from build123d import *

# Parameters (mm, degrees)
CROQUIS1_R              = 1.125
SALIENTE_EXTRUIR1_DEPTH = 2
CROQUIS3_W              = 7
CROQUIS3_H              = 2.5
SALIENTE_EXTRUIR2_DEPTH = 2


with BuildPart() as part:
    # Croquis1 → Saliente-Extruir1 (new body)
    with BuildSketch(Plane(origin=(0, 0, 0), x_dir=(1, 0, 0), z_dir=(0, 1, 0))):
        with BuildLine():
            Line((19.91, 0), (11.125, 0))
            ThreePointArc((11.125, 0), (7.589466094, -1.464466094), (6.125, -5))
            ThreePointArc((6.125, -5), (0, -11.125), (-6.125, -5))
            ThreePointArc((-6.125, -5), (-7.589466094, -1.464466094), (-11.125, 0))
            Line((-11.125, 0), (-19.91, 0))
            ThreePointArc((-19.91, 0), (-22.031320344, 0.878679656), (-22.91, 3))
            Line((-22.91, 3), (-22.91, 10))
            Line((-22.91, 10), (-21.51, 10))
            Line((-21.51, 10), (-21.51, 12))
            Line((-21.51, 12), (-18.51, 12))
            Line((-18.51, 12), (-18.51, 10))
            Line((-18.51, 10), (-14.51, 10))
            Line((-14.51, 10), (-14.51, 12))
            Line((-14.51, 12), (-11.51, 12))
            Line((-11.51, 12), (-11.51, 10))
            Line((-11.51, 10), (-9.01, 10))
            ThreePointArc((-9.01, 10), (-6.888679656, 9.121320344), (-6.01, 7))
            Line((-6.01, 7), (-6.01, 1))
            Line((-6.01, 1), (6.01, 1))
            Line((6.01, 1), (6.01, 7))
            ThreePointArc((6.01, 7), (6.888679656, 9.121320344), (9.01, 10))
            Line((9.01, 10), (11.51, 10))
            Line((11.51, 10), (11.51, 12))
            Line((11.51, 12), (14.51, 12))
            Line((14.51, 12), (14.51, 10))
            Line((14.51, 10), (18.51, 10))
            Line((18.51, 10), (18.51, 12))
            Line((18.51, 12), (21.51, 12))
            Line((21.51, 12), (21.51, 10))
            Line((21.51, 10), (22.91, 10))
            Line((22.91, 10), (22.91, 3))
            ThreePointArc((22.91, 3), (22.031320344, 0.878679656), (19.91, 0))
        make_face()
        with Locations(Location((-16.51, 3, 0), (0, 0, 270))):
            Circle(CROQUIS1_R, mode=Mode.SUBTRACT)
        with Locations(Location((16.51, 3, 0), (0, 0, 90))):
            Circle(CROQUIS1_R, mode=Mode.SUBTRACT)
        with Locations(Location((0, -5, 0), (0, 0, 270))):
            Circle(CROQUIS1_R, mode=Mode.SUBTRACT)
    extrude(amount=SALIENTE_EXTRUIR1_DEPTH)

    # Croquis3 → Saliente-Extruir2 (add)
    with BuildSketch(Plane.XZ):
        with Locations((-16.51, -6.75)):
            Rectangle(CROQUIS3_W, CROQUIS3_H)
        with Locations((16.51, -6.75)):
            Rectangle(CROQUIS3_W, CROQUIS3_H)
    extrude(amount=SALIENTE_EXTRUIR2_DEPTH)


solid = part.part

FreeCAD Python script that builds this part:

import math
import FreeCAD as App
import Part
import Sketcher

V = App.Vector

doc = App.newDocument("Part")
body = doc.addObject("PartDesign::Body", "Body")

# Sketch on XZ plane
sketch1 = body.newObject("Sketcher::SketchObject", "Sketch")
sketch1.AttachmentSupport = (doc.getObject("XZ_Plane"), [""])
sketch1.MapMode = "FlatFace"
sketch1.addGeometry(Part.LineSegment(V(11.1, 0, 0), V(19.9, 0, 0)), False)
sketch1.addGeometry(Part.ArcOfCircle(Part.Circle(V(19.9, -3, 0), V(0, 0, 1), 3), math.radians(0), math.radians(90)), False)
sketch1.addGeometry(Part.LineSegment(V(22.9, -3, 0), V(22.9, -10, 0)), False)
sketch1.addGeometry(Part.LineSegment(V(22.9, -10, 0), V(21.5, -10, 0)), False)
sketch1.addGeometry(Part.LineSegment(V(21.5, -10, 0), V(21.5, -12, 0)), False)
sketch1.addGeometry(Part.LineSegment(V(21.5, -12, 0), V(18.5, -12, 0)), False)
sketch1.addGeometry(Part.LineSegment(V(18.5, -12, 0), V(18.5, -10, 0)), False)
sketch1.addGeometry(Part.LineSegment(V(18.5, -10, 0), V(14.5, -10, 0)), False)
sketch1.addGeometry(Part.LineSegment(V(14.5, -10, 0), V(14.5, -12, 0)), False)
sketch1.addGeometry(Part.LineSegment(V(14.5, -12, 0), V(11.5, -12, 0)), False)
sketch1.addGeometry(Part.LineSegment(V(11.5, -12, 0), V(11.5, -10, 0)), False)
sketch1.addGeometry(Part.LineSegment(V(11.5, -10, 0), V(9, -10, 0)), False)
sketch1.addGeometry(Part.ArcOfCircle(Part.Circle(V(9, -7, 0), V(0, 0, 1), 3), math.radians(180), math.radians(270)), False)
sketch1.addGeometry(Part.LineSegment(V(6, -7, 0), V(6, -1, 0)), False)
sketch1.addGeometry(Part.LineSegment(V(6, -1, 0), V(-6, -1, 0)), False)
sketch1.addGeometry(Part.LineSegment(V(-6, -1, 0), V(-6, -7, 0)), False)
sketch1.addGeometry(Part.ArcOfCircle(Part.Circle(V(-9, -7, 0), V(0, 0, 1), 3), math.radians(-90), math.radians(0)), False)
sketch1.addGeometry(Part.LineSegment(V(-9, -10, 0), V(-11.5, -10, 0)), False)
sketch1.addGeometry(Part.LineSegment(V(-11.5, -10, 0), V(-11.5, -12, 0)), False)
sketch1.addGeometry(Part.LineSegment(V(-11.5, -12, 0), V(-14.5, -12, 0)), False)
sketch1.addGeometry(Part.LineSegment(V(-14.5, -12, 0), V(-14.5, -10, 0)), False)
sketch1.addGeometry(Part.LineSegment(V(-14.5, -10, 0), V(-18.5, -10, 0)), False)
sketch1.addGeometry(Part.LineSegment(V(-18.5, -10, 0), V(-18.5, -12, 0)), False)
sketch1.addGeometry(Part.LineSegment(V(-18.5, -12, 0), V(-21.5, -12, 0)), False)
sketch1.addGeometry(Part.LineSegment(V(-21.5, -12, 0), V(-21.5, -10, 0)), False)
sketch1.addGeometry(Part.LineSegment(V(-21.5, -10, 0), V(-22.9, -10, 0)), False)
sketch1.addGeometry(Part.LineSegment(V(-22.9, -10, 0), V(-22.9, -3, 0)), False)
sketch1.addGeometry(Part.ArcOfCircle(Part.Circle(V(-19.9, -3, 0), V(0, 0, 1), 3), math.radians(90), math.radians(180)), False)
sketch1.addGeometry(Part.LineSegment(V(-19.9, 0, 0), V(-11.1, 0, 0)), False)
sketch1.addGeometry(Part.ArcOfCircle(Part.Circle(V(-11.1, 5, 0), V(0, 0, 1), 5), math.radians(-90), math.radians(0)), False)
sketch1.addGeometry(Part.ArcOfCircle(Part.Circle(V(0, 5, 0), V(0, 0, 1), 6.1), math.radians(0), math.radians(180)), False)
sketch1.addGeometry(Part.ArcOfCircle(Part.Circle(V(11.1, 5, 0), V(0, 0, 1), 5), math.radians(180), math.radians(270)), False)
sketch1.addGeometry(Part.Circle(V(0, 5, 0), V(0, 0, 1), 1.1), False)
sketch1.addGeometry(Part.Circle(V(16.5, -3, 0), V(0, 0, 1), 1.1), False)
sketch1.addGeometry(Part.Circle(V(-16.5, -3, 0), V(0, 0, 1), 1.1), False)
sketch1.addConstraint(Sketcher.Constraint("Tangent", 0, 2, 1, 2))
sketch1.addConstraint(Sketcher.Constraint("Tangent", 1, 1, 2, 1))
sketch1.addConstraint(Sketcher.Constraint("Coincident", 2, 2, 3, 1))
sketch1.addConstraint(Sketcher.Constraint("Coincident", 3, 2, 4, 1))
sketch1.addConstraint(Sketcher.Constraint("Coincident", 4, 2, 5, 1))
sketch1.addConstraint(Sketcher.Constraint("Coincident", 5, 2, 6, 1))
sketch1.addConstraint(Sketcher.Constraint("Coincident", 6, 2, 7, 1))
sketch1.addConstraint(Sketcher.Constraint("Coincident", 7, 2, 8, 1))
sketch1.addConstraint(Sketcher.Constraint("Coincident", 8, 2, 9, 1))
sketch1.addConstraint(Sketcher.Constraint("Coincident", 9, 2, 10, 1))
sketch1.addConstraint(Sketcher.Constraint("Coincident", 10, 2, 11, 1))
sketch1.addConstraint(Sketcher.Constraint("Tangent", 11, 2, 12, 2))
sketch1.addConstraint(Sketcher.Constraint("Tangent", 12, 1, 13, 1))
sketch1.addConstraint(Sketcher.Constraint("Coincident", 13, 2, 14, 1))
sketch1.addConstraint(Sketcher.Constraint("Coincident", 14, 2, 15, 1))
sketch1.addConstraint(Sketcher.Constraint("Tangent", 15, 2, 16, 2))
sketch1.addConstraint(Sketcher.Constraint("Tangent", 16, 1, 17, 1))
sketch1.addConstraint(Sketcher.Constraint("Coincident", 17, 2, 18, 1))
sketch1.addConstraint(Sketcher.Constraint("Coincident", 18, 2, 19, 1))
sketch1.addConstraint(Sketcher.Constraint("Coincident", 19, 2, 20, 1))
sketch1.addConstraint(Sketcher.Constraint("Coincident", 20, 2, 21, 1))
sketch1.addConstraint(Sketcher.Constraint("Coincident", 21, 2, 22, 1))
sketch1.addConstraint(Sketcher.Constraint("Coincident", 22, 2, 23, 1))
sketch1.addConstraint(Sketcher.Constraint("Coincident", 23, 2, 24, 1))
sketch1.addConstraint(Sketcher.Constraint("Coincident", 24, 2, 25, 1))
sketch1.addConstraint(Sketcher.Constraint("Coincident", 25, 2, 26, 1))
sketch1.addConstraint(Sketcher.Constraint("Tangent", 26, 2, 27, 2))
sketch1.addConstraint(Sketcher.Constraint("Tangent", 27, 1, 28, 1))
sketch1.addConstraint(Sketcher.Constraint("Tangent", 28, 2, 29, 1))
sketch1.addConstraint(Sketcher.Constraint("Tangent", 29, 2, 30, 2))
sketch1.addConstraint(Sketcher.Constraint("Tangent", 30, 1, 31, 1))
sketch1.addConstraint(Sketcher.Constraint("Tangent", 31, 2, 0, 1))
sketch1.addConstraint(Sketcher.Constraint("Horizontal", 0))
sketch1.addConstraint(Sketcher.Constraint("Vertical", 2))
sketch1.addConstraint(Sketcher.Constraint("Horizontal", 3))
sketch1.addConstraint(Sketcher.Constraint("Vertical", 4))
sketch1.addConstraint(Sketcher.Constraint("Horizontal", 5))
sketch1.addConstraint(Sketcher.Constraint("Vertical", 6))
sketch1.addConstraint(Sketcher.Constraint("Horizontal", 7))
sketch1.addConstraint(Sketcher.Constraint("Vertical", 8))
sketch1.addConstraint(Sketcher.Constraint("Horizontal", 9))
sketch1.addConstraint(Sketcher.Constraint("Vertical", 10))
sketch1.addConstraint(Sketcher.Constraint("Horizontal", 11))
sketch1.addConstraint(Sketcher.Constraint("Vertical", 13))
sketch1.addConstraint(Sketcher.Constraint("Horizontal", 14))
sketch1.addConstraint(Sketcher.Constraint("Vertical", 15))
sketch1.addConstraint(Sketcher.Constraint("Horizontal", 17))
sketch1.addConstraint(Sketcher.Constraint("Vertical", 18))
sketch1.addConstraint(Sketcher.Constraint("Horizontal", 19))
sketch1.addConstraint(Sketcher.Constraint("Vertical", 20))
sketch1.addConstraint(Sketcher.Constraint("Horizontal", 21))
sketch1.addConstraint(Sketcher.Constraint("Vertical", 22))
sketch1.addConstraint(Sketcher.Constraint("Horizontal", 23))
sketch1.addConstraint(Sketcher.Constraint("Vertical", 24))
sketch1.addConstraint(Sketcher.Constraint("Horizontal", 25))
sketch1.addConstraint(Sketcher.Constraint("Vertical", 26))
sketch1.addConstraint(Sketcher.Constraint("Horizontal", 28))
sketch1.addConstraint(Sketcher.Constraint("Coincident", 32, 3, 30, 3))
sketch1.addConstraint(Sketcher.Constraint("Equal", 1, 12))
sketch1.addConstraint(Sketcher.Constraint("Equal", 12, 16))
sketch1.addConstraint(Sketcher.Constraint("Equal", 16, 27))
sketch1.addConstraint(Sketcher.Constraint("Equal", 29, 31))
sketch1.addConstraint(Sketcher.Constraint("Equal", 32, 33))
sketch1.addConstraint(Sketcher.Constraint("Equal", 33, 34))
sketch1.addConstraint(Sketcher.Constraint("Symmetric", 0, 2, 27, 1, -1, 1))
sketch1.addConstraint(Sketcher.Constraint("Symmetric", 12, 3, 16, 3, -2))
sketch1.addConstraint(Sketcher.Constraint("Symmetric", 29, 3, 31, 3, -2))
sketch1.addConstraint(Sketcher.Constraint("Symmetric", 33, 3, 34, 3, -2))
sketch1.addConstraint(Sketcher.Constraint("Symmetric", 9, 2, 18, 2, -2))
sketch1.addConstraint(Sketcher.Constraint("Symmetric", 7, 2, 20, 2, -2))
sketch1.addConstraint(Sketcher.Constraint("Symmetric", 5, 2, 22, 2, -2))
sketch1.addConstraint(Sketcher.Constraint("Symmetric", 3, 2, 24, 2, -2))
sketch1.addConstraint(Sketcher.Constraint("Horizontal", 29, 3, 30, 3))
sketch1.addConstraint(Sketcher.Constraint("Horizontal", 27, 3, 33, 3))
sketch1.addConstraint(Sketcher.Constraint("Horizontal", 3, 2, 6, 2))
sketch1.addConstraint(Sketcher.Constraint("Horizontal", 5, 2, 8, 2))
sketch1.addConstraint(Sketcher.Constraint("Horizontal", 7, 2, 10, 2))
sketch1.addConstraint(Sketcher.Constraint("Equal", 5, 9))
sketch1.addConstraint(Sketcher.Constraint("Radius", 1, 3.0))
sketch1.addConstraint(Sketcher.Constraint("Radius", 29, 5.0))
sketch1.addConstraint(Sketcher.Constraint("Diameter", 32, 2.25))
sketch1.addConstraint(Sketcher.Constraint("DistanceX", 5, 2, 5, 1, 3.0))
sketch1.addConstraint(Sketcher.Constraint("DistanceX", 7, 2, 7, 1, 4.0))
sketch1.addConstraint(Sketcher.Constraint("DistanceY", 2, 2, 2, 1, 7.0))
sketch1.addConstraint(Sketcher.Constraint("DistanceY", 4, 2, 4, 1, 2.0))
sketch1.addConstraint(Sketcher.Constraint("DistanceY", 13, 1, 13, 2, 6.0))
sketch1.addConstraint(Sketcher.Constraint("DistanceX", 3, 2, 3, 1, 1.4))
sketch1.addConstraint(Sketcher.Constraint("DistanceX", 11, 2, 11, 1, 2.5))
sketch1.addConstraint(Sketcher.Constraint("Radius", 30, 6.125))
sketch1.addConstraint(Sketcher.Constraint("DistanceX", 33, 3, 3, 2, 5.0))
sketch1.addConstraint(Sketcher.Constraint("DistanceX", 14, 2, 14, 1, 12.02))
pad1 = body.newObject("PartDesign::Pad", "Pad")
pad1.Profile = sketch1
pad1.Length = 2
pad1.Reversed = True

# Sketch on XZ plane
sketch2 = body.newObject("Sketcher::SketchObject", "Sketch001")
sketch2.AttachmentSupport = (doc.getObject("XZ_Plane"), [""])
sketch2.MapMode = "FlatFace"
sketch2.addGeometry(Part.LineSegment(V(-20, -5.5, 0), V(-20, -8, 0)), False)
sketch2.addGeometry(Part.LineSegment(V(-20, -8, 0), V(-13, -8, 0)), False)
sketch2.addGeometry(Part.LineSegment(V(-13, -8, 0), V(-13, -5.5, 0)), False)
sketch2.addGeometry(Part.LineSegment(V(-13, -5.5, 0), V(-20, -5.5, 0)), False)
sketch2.addGeometry(Part.LineSegment(V(13, -5.5, 0), V(13, -8, 0)), False)
sketch2.addGeometry(Part.LineSegment(V(13, -8, 0), V(20, -8, 0)), False)
sketch2.addGeometry(Part.LineSegment(V(20, -8, 0), V(20, -5.5, 0)), False)
sketch2.addGeometry(Part.LineSegment(V(20, -5.5, 0), V(13, -5.5, 0)), False)
sketch2.addConstraint(Sketcher.Constraint("Coincident", 0, 2, 1, 1))
sketch2.addConstraint(Sketcher.Constraint("Coincident", 1, 2, 2, 1))
sketch2.addConstraint(Sketcher.Constraint("Coincident", 2, 2, 3, 1))
sketch2.addConstraint(Sketcher.Constraint("Coincident", 3, 2, 0, 1))
sketch2.addConstraint(Sketcher.Constraint("Coincident", 4, 2, 5, 1))
sketch2.addConstraint(Sketcher.Constraint("Coincident", 5, 2, 6, 1))
sketch2.addConstraint(Sketcher.Constraint("Coincident", 6, 2, 7, 1))
sketch2.addConstraint(Sketcher.Constraint("Coincident", 7, 2, 4, 1))
sketch2.addConstraint(Sketcher.Constraint("Vertical", 0))
sketch2.addConstraint(Sketcher.Constraint("Horizontal", 1))
sketch2.addConstraint(Sketcher.Constraint("Vertical", 2))
sketch2.addConstraint(Sketcher.Constraint("Horizontal", 3))
sketch2.addConstraint(Sketcher.Constraint("Vertical", 4))
sketch2.addConstraint(Sketcher.Constraint("Horizontal", 5))
sketch2.addConstraint(Sketcher.Constraint("Vertical", 6))
sketch2.addConstraint(Sketcher.Constraint("Horizontal", 7))
sketch2.addConstraint(Sketcher.Constraint("Symmetric", 1, 2, 4, 2, -2))
sketch2.addConstraint(Sketcher.Constraint("Symmetric", 3, 2, 6, 2, -2))
sketch2.addConstraint(Sketcher.Constraint("DistanceX", 1, 1, 1, 2, 7.0))
sketch2.addConstraint(Sketcher.Constraint("DistanceY", 0, 2, 0, 1, 2.5))
sketch2.addConstraint(Sketcher.Constraint("DistanceY", 0, 2, -1, 1, 8.0))
sketch2.addConstraint(Sketcher.Constraint("DistanceX", 0, 2, -1, 1, 20.01))
pad2 = body.newObject("PartDesign::Pad", "Pad001")
pad2.Profile = sketch2
pad2.Length = 2

doc.recompute()
